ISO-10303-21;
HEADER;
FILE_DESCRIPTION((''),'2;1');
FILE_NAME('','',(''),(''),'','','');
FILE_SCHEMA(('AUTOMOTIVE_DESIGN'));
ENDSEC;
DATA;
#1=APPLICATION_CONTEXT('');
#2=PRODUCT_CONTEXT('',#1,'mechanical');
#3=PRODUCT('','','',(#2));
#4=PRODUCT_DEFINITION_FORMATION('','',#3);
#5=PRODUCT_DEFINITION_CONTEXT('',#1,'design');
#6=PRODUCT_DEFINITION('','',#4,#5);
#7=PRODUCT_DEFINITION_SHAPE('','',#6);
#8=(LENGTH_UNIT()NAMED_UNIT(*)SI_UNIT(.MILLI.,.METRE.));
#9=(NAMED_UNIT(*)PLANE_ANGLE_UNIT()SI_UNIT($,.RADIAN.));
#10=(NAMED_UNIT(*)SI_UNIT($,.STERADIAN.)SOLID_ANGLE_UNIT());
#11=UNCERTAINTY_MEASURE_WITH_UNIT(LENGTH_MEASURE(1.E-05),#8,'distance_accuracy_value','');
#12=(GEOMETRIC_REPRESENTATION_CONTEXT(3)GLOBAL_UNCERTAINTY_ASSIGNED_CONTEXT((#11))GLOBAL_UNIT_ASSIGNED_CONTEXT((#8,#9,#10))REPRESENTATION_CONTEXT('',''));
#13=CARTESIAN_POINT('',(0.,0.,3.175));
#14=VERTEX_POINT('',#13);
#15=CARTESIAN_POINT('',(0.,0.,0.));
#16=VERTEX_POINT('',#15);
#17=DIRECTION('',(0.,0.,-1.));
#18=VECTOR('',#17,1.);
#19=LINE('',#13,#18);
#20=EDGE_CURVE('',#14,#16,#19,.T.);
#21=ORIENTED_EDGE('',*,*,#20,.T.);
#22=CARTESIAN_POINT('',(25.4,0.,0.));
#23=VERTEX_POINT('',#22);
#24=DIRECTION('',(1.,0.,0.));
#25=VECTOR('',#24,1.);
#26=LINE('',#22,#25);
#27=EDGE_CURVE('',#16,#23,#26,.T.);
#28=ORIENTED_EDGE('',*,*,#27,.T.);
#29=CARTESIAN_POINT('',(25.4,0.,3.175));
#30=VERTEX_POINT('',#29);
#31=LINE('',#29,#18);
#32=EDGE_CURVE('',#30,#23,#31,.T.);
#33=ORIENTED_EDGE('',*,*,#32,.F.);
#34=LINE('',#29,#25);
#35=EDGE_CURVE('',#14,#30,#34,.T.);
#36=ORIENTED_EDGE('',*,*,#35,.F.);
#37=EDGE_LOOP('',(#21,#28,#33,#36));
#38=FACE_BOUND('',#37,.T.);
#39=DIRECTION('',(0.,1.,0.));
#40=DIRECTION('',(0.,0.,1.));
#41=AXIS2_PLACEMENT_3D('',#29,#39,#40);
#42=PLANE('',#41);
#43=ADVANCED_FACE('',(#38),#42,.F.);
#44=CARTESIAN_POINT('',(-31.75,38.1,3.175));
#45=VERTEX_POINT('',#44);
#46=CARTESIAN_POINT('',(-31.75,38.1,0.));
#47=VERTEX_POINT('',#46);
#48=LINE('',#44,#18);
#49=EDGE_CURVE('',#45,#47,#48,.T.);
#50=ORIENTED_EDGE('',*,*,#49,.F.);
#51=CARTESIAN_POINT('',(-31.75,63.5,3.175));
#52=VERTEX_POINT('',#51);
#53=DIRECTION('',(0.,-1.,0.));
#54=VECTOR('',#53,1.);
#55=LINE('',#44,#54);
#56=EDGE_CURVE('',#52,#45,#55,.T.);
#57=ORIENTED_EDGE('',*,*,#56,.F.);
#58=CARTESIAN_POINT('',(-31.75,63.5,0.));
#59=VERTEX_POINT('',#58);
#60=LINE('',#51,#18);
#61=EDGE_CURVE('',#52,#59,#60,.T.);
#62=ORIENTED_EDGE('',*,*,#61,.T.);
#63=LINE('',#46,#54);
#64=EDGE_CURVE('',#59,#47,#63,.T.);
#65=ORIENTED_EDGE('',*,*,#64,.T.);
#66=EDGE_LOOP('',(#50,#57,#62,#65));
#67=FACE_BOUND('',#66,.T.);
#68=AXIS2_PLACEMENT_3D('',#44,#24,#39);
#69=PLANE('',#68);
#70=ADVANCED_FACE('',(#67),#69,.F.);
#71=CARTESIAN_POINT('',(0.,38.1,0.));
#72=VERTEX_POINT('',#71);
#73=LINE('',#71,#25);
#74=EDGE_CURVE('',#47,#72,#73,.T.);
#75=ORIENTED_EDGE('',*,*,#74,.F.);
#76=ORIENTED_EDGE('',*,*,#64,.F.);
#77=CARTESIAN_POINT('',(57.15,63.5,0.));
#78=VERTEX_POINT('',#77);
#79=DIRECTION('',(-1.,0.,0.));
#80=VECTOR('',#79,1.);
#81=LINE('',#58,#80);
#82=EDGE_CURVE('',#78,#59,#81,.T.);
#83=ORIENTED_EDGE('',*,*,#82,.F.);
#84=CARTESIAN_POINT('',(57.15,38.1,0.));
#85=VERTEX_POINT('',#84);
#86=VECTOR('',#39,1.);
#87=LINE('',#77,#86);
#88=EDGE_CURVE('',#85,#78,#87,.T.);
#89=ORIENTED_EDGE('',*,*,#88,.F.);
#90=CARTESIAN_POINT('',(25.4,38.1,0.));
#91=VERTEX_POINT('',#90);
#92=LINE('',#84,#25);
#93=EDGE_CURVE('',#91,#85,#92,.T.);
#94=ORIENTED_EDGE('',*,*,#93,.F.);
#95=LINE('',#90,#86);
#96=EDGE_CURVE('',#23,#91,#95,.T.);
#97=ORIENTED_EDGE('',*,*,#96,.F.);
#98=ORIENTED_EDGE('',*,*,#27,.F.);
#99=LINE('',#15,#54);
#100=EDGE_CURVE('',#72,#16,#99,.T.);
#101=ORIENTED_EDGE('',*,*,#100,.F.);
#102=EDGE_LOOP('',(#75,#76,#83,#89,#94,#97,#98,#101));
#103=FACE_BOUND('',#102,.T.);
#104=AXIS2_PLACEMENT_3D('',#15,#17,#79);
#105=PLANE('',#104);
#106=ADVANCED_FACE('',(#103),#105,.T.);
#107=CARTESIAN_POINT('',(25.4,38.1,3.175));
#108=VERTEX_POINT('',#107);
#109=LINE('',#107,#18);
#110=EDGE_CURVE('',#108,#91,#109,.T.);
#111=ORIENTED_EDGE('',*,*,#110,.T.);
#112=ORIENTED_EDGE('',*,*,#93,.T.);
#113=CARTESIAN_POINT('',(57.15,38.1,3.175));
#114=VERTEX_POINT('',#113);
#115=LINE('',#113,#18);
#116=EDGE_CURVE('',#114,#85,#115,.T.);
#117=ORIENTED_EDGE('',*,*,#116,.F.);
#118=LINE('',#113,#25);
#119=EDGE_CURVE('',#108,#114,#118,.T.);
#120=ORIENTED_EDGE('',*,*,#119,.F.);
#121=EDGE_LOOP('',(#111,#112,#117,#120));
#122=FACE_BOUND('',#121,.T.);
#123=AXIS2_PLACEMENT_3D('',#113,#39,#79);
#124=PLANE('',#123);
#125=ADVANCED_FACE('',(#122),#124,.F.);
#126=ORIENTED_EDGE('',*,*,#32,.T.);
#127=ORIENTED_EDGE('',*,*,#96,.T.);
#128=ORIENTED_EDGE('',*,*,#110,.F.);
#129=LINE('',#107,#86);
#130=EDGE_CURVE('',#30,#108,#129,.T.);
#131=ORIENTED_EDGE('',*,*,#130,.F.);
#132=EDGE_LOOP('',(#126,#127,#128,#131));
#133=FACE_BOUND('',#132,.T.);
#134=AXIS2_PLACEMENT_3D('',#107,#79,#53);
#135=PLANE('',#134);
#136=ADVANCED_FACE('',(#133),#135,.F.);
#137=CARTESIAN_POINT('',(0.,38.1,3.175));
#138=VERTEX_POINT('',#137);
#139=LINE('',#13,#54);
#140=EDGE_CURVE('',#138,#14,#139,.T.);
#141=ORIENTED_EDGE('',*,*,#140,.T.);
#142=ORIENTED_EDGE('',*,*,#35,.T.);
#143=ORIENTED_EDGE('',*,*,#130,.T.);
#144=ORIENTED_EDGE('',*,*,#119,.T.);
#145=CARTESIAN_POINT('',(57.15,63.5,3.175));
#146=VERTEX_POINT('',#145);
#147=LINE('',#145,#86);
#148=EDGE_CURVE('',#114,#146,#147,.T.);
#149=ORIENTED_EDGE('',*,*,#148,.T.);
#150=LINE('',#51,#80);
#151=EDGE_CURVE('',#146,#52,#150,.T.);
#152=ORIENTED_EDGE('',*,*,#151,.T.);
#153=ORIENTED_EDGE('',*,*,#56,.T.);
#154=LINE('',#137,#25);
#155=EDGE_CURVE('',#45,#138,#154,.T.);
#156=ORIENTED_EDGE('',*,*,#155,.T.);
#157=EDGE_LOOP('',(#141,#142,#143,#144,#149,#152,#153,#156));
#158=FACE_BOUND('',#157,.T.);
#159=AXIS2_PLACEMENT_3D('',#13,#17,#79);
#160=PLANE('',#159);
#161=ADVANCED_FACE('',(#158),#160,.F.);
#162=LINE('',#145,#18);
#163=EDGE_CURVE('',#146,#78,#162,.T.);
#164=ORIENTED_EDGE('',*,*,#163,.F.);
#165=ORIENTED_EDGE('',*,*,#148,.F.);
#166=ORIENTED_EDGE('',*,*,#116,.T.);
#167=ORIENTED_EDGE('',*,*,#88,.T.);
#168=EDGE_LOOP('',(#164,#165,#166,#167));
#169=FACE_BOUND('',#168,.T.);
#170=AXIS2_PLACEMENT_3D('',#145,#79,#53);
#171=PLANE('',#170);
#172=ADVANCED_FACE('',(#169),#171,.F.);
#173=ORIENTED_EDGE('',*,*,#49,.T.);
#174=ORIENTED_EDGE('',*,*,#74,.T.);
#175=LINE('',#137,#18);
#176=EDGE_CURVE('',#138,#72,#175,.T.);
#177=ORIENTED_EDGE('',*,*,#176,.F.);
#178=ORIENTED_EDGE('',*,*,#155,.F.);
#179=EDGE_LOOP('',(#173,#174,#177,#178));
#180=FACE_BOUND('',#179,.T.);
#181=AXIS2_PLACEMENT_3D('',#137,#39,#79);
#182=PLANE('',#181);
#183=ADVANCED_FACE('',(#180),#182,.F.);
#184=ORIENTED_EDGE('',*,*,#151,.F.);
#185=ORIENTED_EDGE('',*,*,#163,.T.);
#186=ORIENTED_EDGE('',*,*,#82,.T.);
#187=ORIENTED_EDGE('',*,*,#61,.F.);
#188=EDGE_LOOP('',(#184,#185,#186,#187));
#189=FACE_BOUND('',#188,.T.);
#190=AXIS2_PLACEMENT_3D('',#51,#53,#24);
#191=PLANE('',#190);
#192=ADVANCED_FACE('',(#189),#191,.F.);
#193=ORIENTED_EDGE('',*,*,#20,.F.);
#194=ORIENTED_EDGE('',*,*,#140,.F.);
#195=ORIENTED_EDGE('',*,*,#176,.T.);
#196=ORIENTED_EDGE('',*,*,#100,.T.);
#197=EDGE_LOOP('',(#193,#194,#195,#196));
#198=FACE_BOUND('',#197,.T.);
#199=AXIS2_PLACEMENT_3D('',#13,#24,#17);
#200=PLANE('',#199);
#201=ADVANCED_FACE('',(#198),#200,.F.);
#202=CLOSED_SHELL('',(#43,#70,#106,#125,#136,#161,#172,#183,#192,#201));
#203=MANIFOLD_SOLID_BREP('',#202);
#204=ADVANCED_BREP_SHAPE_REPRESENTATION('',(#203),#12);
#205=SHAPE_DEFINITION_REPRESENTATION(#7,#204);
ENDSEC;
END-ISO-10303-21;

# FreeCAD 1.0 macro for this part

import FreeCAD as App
import Part
import Sketcher
Q = App.Units.Quantity

doc = App.newDocument("Part")
params = doc.addObject("Spreadsheet::Sheet", "Params")
for row, (alias, value) in enumerate([
    ("sketch1_width", "1 in"),
    ("sketch1_width2", "3.5 in"),
    ("sketch1_height", "1.5 in"),
    ("pad1_length", "0.125 in"),
], start=1):
    params.set(f"A{row}", alias)
    params.set(f"B{row}", "=" + value)
    params.setAlias(f"B{row}", alias)

body = doc.addObject("PartDesign::Body", "Body")

# Sketch on XY plane
sketch1 = body.newObject("Sketcher::SketchObject", "Sketch")
sketch1.AttachmentSupport = (doc.getObject("XY_Plane"), [""])
sketch1.MapMode = "FlatFace"
sketch1.addGeometry([
    Part.LineSegment(App.Vector(0, 38, 0), App.Vector(0, 0, 0)),  # 0
    Part.LineSegment(App.Vector(0, 0, 0), App.Vector(25, 0, 0)),  # 1
    Part.LineSegment(App.Vector(25, 0, 0), App.Vector(25, 38, 0)),  # 2
    Part.LineSegment(App.Vector(25, 38, 0), App.Vector(57, 38, 0)),  # 3
    Part.LineSegment(App.Vector(57, 38, 0), App.Vector(57, 64, 0)),  # 4
    Part.LineSegment(App.Vector(57, 64, 0), App.Vector(-32, 64, 0)),  # 5
    Part.LineSegment(App.Vector(-32, 64, 0), App.Vector(-32, 38, 0)),  # 6
    Part.LineSegment(App.Vector(-32, 38, 0), App.Vector(0, 38, 0)),  # 7
], False)
sketch1.addConstraint([
    Sketcher.Constraint("Coincident", 0, 2, 1, 1),
    Sketcher.Constraint("Coincident", 1, 2, 2, 1),
    Sketcher.Constraint("Coincident", 2, 2, 3, 1),
    Sketcher.Constraint("Coincident", 3, 2, 4, 1),
    Sketcher.Constraint("Coincident", 4, 2, 5, 1),
    Sketcher.Constraint("Coincident", 5, 2, 6, 1),
    Sketcher.Constraint("Coincident", 6, 2, 7, 1),
    Sketcher.Constraint("Coincident", 7, 2, 0, 1),
    Sketcher.Constraint("Vertical", 0),
    Sketcher.Constraint("Horizontal", 1),
    Sketcher.Constraint("Vertical", 2),
    Sketcher.Constraint("Horizontal", 3),
    Sketcher.Constraint("Vertical", 4),
    Sketcher.Constraint("Horizontal", 5),
    Sketcher.Constraint("Vertical", 6),
    Sketcher.Constraint("Horizontal", 7),
    Sketcher.Constraint("Coincident", 0, 2, -1, 1),
    Sketcher.Constraint("Horizontal", 3, 2, 6, 2),
    Sketcher.Constraint("Equal", 3, 7),
    Sketcher.Constraint("Equal", 1, 4),
    Sketcher.Constraint("DistanceX", 1, 1, 1, 2, Q("1 in")),
    Sketcher.Constraint("DistanceX", 5, 2, 5, 1, Q("3.5 in")),
    Sketcher.Constraint("DistanceY", 0, 2, 0, 1, Q("1.5 in")),
])
sketch1.setExpression("Constraints[20]", "Params.sketch1_width")
sketch1.setExpression("Constraints[21]", "Params.sketch1_width2")
sketch1.setExpression("Constraints[22]", "Params.sketch1_height")
pad1 = body.newObject("PartDesign::Pad", "Pad")
pad1.Profile = sketch1
pad1.setExpression("Length", "Params.pad1_length")

doc.recompute()
